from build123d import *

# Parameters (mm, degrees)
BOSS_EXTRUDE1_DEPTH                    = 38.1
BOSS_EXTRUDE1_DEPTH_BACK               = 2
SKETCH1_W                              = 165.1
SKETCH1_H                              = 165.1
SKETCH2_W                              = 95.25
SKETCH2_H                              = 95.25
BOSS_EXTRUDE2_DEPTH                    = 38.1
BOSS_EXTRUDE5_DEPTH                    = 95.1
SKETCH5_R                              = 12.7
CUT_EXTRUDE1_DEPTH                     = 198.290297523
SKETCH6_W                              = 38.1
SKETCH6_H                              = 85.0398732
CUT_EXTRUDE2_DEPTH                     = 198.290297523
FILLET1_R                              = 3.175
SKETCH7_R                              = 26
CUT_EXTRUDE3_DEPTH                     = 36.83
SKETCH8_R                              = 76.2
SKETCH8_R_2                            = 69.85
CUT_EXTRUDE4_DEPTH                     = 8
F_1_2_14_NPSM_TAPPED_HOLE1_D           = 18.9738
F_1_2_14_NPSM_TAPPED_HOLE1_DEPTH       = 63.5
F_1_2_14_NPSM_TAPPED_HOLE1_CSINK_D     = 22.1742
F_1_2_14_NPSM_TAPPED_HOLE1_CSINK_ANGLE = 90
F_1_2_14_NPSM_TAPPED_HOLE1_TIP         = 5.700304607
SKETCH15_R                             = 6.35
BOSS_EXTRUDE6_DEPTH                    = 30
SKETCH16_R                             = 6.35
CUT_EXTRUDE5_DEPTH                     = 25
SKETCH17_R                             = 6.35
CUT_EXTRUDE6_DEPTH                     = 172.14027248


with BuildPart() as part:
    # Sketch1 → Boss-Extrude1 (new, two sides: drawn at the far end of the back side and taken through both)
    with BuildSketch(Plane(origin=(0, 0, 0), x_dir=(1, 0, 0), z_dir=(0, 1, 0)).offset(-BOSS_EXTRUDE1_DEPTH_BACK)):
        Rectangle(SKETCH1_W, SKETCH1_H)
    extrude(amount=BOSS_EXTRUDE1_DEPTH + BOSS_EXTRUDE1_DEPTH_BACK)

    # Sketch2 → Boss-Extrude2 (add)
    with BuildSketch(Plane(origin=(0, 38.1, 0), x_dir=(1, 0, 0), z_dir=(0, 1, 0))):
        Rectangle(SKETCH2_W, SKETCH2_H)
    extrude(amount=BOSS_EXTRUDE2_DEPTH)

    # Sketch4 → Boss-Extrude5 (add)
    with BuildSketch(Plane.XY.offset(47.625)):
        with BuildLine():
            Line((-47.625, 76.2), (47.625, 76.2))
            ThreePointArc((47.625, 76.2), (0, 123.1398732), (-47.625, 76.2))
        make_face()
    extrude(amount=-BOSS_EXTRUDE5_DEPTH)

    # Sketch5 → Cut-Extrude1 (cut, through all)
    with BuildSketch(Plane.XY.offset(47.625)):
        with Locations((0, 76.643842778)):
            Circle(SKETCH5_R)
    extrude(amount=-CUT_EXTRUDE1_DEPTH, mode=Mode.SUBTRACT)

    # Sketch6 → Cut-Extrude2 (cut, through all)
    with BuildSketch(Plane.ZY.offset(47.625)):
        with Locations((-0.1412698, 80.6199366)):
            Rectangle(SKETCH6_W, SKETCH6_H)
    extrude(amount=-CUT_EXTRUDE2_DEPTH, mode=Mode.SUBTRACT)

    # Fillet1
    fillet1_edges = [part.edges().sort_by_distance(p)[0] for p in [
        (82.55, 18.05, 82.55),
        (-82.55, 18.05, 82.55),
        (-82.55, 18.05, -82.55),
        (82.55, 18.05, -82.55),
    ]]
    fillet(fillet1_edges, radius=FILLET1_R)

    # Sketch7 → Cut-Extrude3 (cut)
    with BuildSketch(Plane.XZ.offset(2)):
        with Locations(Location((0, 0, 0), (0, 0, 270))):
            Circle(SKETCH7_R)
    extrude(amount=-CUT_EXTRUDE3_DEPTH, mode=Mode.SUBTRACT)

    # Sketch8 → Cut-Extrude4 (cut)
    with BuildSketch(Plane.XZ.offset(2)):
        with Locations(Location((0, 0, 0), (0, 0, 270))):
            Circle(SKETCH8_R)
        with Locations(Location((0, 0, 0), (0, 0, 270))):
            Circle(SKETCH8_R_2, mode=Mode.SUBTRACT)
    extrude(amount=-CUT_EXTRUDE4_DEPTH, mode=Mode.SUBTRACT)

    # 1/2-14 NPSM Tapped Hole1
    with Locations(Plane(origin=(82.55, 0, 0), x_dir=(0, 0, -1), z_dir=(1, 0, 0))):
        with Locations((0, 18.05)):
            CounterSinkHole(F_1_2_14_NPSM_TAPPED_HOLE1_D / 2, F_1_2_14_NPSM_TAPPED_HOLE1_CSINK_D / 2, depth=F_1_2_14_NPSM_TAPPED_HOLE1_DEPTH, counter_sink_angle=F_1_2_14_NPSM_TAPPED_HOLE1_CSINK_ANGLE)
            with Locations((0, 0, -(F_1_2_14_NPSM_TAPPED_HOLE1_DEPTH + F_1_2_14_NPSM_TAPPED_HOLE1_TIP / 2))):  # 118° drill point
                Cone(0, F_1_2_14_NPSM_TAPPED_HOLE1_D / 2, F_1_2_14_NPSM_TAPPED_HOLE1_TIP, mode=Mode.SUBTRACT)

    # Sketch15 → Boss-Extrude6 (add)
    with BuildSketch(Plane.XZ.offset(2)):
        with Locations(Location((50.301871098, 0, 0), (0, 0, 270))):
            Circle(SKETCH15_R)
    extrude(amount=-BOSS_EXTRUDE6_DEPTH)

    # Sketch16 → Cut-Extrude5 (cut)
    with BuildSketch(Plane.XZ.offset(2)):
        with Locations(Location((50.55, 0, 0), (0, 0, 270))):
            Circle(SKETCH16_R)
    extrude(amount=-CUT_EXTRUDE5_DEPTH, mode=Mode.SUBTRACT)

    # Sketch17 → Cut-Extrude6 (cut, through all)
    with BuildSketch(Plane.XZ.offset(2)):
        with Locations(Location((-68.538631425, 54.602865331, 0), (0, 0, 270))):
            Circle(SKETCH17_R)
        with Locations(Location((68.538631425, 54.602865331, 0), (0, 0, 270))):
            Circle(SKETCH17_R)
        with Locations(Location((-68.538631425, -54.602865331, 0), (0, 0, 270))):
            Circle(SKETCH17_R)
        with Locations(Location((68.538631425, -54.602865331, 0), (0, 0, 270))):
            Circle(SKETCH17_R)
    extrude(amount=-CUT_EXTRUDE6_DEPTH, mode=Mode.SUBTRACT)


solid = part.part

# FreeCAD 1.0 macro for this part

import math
import FreeCAD as App
import Part
import Sketcher
Q = App.Units.Quantity


def edges_at(feature, points):
    """Names of the edges that pass closest to the given points."""
    edges = feature.Shape.Edges
    near = lambda p: min(range(len(edges)), key=lambda i: edges[i].distToShape(Part.Vertex(*p))[0])
    return sorted({f"Edge{near(p) + 1}" for p in points})

doc = App.newDocument("Part")
body = doc.addObject("PartDesign::Body", "Body")

sketch1 = body.newObject("Sketcher::SketchObject", "Sketch")
sketch1.AttachmentSupport = (doc.getObject("XZ_Plane"), [""])
sketch1.MapMode = "FlatFace"
sketch1.addGeometry(Part.LineSegment(App.Vector(-83, -83, 0), App.Vector(-83, 83, 0)), False)
sketch1.addGeometry(Part.LineSegment(App.Vector(-83, 83, 0), App.Vector(83, 83, 0)), False)
sketch1.addGeometry(Part.LineSegment(App.Vector(83, 83, 0), App.Vector(83, -83, 0)), False)
sketch1.addGeometry(Part.LineSegment(App.Vector(83, -83, 0), App.Vector(-83, -83, 0)), False)
sketch1.addConstraint(Sketcher.Constraint("Coincident", 0, 2, 1, 1))
sketch1.addConstraint(Sketcher.Constraint("Coincident", 1, 2, 2, 1))
sketch1.addConstraint(Sketcher.Constraint("Coincident", 2, 2, 3, 1))
sketch1.addConstraint(Sketcher.Constraint("Coincident", 3, 2, 0, 1))
sketch1.addConstraint(Sketcher.Constraint("Vertical", 0))
sketch1.addConstraint(Sketcher.Constraint("Horizontal", 1))
sketch1.addConstraint(Sketcher.Constraint("Vertical", 2))
sketch1.addConstraint(Sketcher.Constraint("Horizontal", 3))
sketch1.addConstraint(Sketcher.Constraint("Symmetric", 0, 2, 2, 2, -1, 1))
sketch1.addConstraint(Sketcher.Constraint("Equal", 3, 0))
sketch1.addConstraint(Sketcher.Constraint("DistanceX", 1, 1, 1, 2, Q("6.5 in")))
pad1 = body.newObject("PartDesign::Pad", "Pad")
pad1.Profile = sketch1
pad1.Type = "TwoLengths"
pad1.Length = Q("1.5 in")
pad1.Length2 = 2
pad1.Reversed = True

sketch2 = body.newObject("Sketcher::SketchObject", "Sketch001")
sketch2.AttachmentSupport = (doc.getObject("XZ_Plane"), [""])
sketch2.MapMode = "FlatFace"
sketch2.AttachmentOffset = App.Placement(App.Vector(0, 0, -1.5 * 25.4), App.Rotation())
sketch2.addGeometry(Part.LineSegment(App.Vector(-48, -48, 0), App.Vector(-48, 48, 0)), False)
sketch2.addGeometry(Part.LineSegment(App.Vector(-48, 48, 0), App.Vector(48, 48, 0)), False)
sketch2.addGeometry(Part.LineSegment(App.Vector(48, 48, 0), App.Vector(48, -48, 0)), False)
sketch2.addGeometry(Part.LineSegment(App.Vector(48, -48, 0), App.Vector(-48, -48, 0)), False)
sketch2.addConstraint(Sketcher.Constraint("Coincident", 0, 2, 1, 1))
sketch2.addConstraint(Sketcher.Constraint("Coincident", 1, 2, 2, 1))
sketch2.addConstraint(Sketcher.Constraint("Coincident", 2, 2, 3, 1))
sketch2.addConstraint(Sketcher.Constraint("Coincident", 3, 2, 0, 1))
sketch2.addConstraint(Sketcher.Constraint("Vertical", 0))
sketch2.addConstraint(Sketcher.Constraint("Horizontal", 1))
sketch2.addConstraint(Sketcher.Constraint("Vertical", 2))
sketch2.addConstraint(Sketcher.Constraint("Horizontal", 3))
sketch2.addConstraint(Sketcher.Constraint("Symmetric", 0, 2, 2, 2, -1, 1))
sketch2.addConstraint(Sketcher.Constraint("Equal", 3, 0))
sketch2.addConstraint(Sketcher.Constraint("DistanceX", 1, 1, 1, 2, Q("3.75 in")))
pad2 = body.newObject("PartDesign::Pad", "Pad001")
pad2.Profile = sketch2
pad2.Length = Q("1.5 in")
pad2.Reversed = True

sketch3 = body.newObject("Sketcher::SketchObject", "Sketch002")
sketch3.AttachmentSupport = (doc.getObject("XY_Plane"), [""])
sketch3.MapMode = "FlatFace"
sketch3.AttachmentOffset = App.Placement(App.Vector(0, 0, 1.875 * 25.4), App.Rotation())
sketch3.addGeometry(Part.LineSegment(App.Vector(-48, 76, 0), App.Vector(48, 76, 0)), False)
sketch3.addGeometry(Part.ArcOfCircle(Part.Circle(App.Vector(0, 76, 0), App.Vector(0, 0, 1), 48), math.radians(1), math.radians(179)), False)
sketch3.addConstraint(Sketcher.Constraint("Coincident", 0, 1, 1, 2))
sketch3.addConstraint(Sketcher.Constraint("Coincident", 1, 1, 0, 2))
sketch3.addConstraint(Sketcher.Constraint("Horizontal", 0))
sketch3.addConstraint(Sketcher.Constraint("PointOnObject", 1, 3, -2))
sketch3.addConstraint(Sketcher.Constraint("DistanceY", -1, 1, 0, 1, Q("3 in")))
sketch3.addConstraint(Sketcher.Constraint("DistanceX", 0, 1, 0, 2, Q("3.75 in")))
sketch3.addConstraint(Sketcher.Constraint("Radius", 1, Q("47.63 mm")))
pad3 = body.newObject("PartDesign::Pad", "Pad002")
pad3.Profile = sketch3
pad3.Length = 95.1
pad3.Reversed = True

sketch4 = body.newObject("Sketcher::SketchObject", "Sketch003")
sketch4.AttachmentSupport = (doc.getObject("XY_Plane"), [""])
sketch4.MapMode = "FlatFace"
sketch4.AttachmentOffset = App.Placement(App.Vector(0, 0, 1.875 * 25.4), App.Rotation())
sketch4.addGeometry(Part.Circle(App.Vector(0, 77, 0), App.Vector(0, 0, 1), 13), False)
sketch4.addConstraint(Sketcher.Constraint("PointOnObject", 0, 3, -2))
sketch4.addConstraint(Sketcher.Constraint("Diameter", 0, Q("1 in")))
sketch4.addConstraint(Sketcher.Constraint("DistanceY", -1, 1, 0, 3, Q("76.643843 mm")))
pocket1 = body.newObject("PartDesign::Pocket", "Pocket")
pocket1.Profile = sketch4
pocket1.Type = "ThroughAll"

sketch5 = body.newObject("Sketcher::SketchObject", "Sketch004")
sketch5.AttachmentSupport = (doc.getObject("YZ_Plane"), [""])
sketch5.MapMode = "FlatFace"
sketch5.AttachmentOffset = App.Placement(App.Vector(0, 0, -1.875 * 25.4), App.Rotation())
sketch5.addGeometry(Part.LineSegment(App.Vector(123, -19, 0), App.Vector(38, -19, 0)), False)
sketch5.addGeometry(Part.LineSegment(App.Vector(38, -19, 0), App.Vector(38, 19, 0)), False)
sketch5.addGeometry(Part.LineSegment(App.Vector(38, 19, 0), App.Vector(123, 19, 0)), False)
sketch5.addGeometry(Part.LineSegment(App.Vector(123, 19, 0), App.Vector(123, -19, 0)), False)
sketch5.addConstraint(Sketcher.Constraint("Coincident", 0, 2, 1, 1))
sketch5.addConstraint(Sketcher.Constraint("Coincident", 1, 2, 2, 1))
sketch5.addConstraint(Sketcher.Constraint("Coincident", 2, 2, 3, 1))
sketch5.addConstraint(Sketcher.Constraint("Coincident", 3, 2, 0, 1))
sketch5.addConstraint(Sketcher.Constraint("Horizontal", 0))
sketch5.addConstraint(Sketcher.Constraint("Vertical", 1))
sketch5.addConstraint(Sketcher.Constraint("Horizontal", 2))
sketch5.addConstraint(Sketcher.Constraint("Vertical", 3))
sketch5.addConstraint(Sketcher.Constraint("DistanceY", 1, 1, 1, 2, Q("1.5 in")))
sketch5.addConstraint(Sketcher.Constraint("DistanceX", -1, 1, 0, 2, Q("1.5 in")))
sketch5.addConstraint(Sketcher.Constraint("DistanceX", 0, 2, 0, 1, Q("85.039873 mm")))
sketch5.addConstraint(Sketcher.Constraint("DistanceY", 0, 2, -1, 1, Q("19.19127 mm")))
pocket2 = body.newObject("PartDesign::Pocket", "Pocket001")
pocket2.Profile = sketch5
pocket2.Type = "ThroughAll"
pocket2.Reversed = True
doc.recompute()

fillet = body.newObject("PartDesign::Fillet", "Fillet")
fillet.Base = (pocket2, edges_at(pocket2, [
    (82.55, 18.05, 82.55),
    (-82.55, 18.05, 82.55),
    (-82.55, 18.05, -82.55),
    (82.55, 18.05, -82.55),
]))
fillet.Radius = Q("0.125 in")

sketch6 = body.newObject("Sketcher::SketchObject", "Sketch005")
sketch6.AttachmentSupport = (doc.getObject("XZ_Plane"), [""])
sketch6.MapMode = "FlatFace"
sketch6.AttachmentOffset = App.Placement(App.Vector(0, 0, 2), App.Rotation())
sketch6.addGeometry(Part.Circle(App.Vector(0, 0, 0), App.Vector(0, 0, 1), 26), False)
sketch6.addConstraint(Sketcher.Constraint("Coincident", 0, 3, -1, 1))
sketch6.addConstraint(Sketcher.Constraint("Diameter", 0, Q("52 mm")))
pocket3 = body.newObject("PartDesign::Pocket", "Pocket002")
pocket3.Profile = sketch6
pocket3.Length = Q("1.45 in")

sketch7 = body.newObject("Sketcher::SketchObject", "Sketch006")
sketch7.AttachmentSupport = (doc.getObject("XZ_Plane"), [""])
sketch7.MapMode = "FlatFace"
sketch7.AttachmentOffset = App.Placement(App.Vector(0, 0, 2), App.Rotation())
sketch7.addGeometry(Part.Circle(App.Vector(0, 0, 0), App.Vector(0, 0, 1), 76), False)
sketch7.addGeometry(Part.Circle(App.Vector(0, 0, 0), App.Vector(0, 0, 1), 70), False)
sketch7.addConstraint(Sketcher.Constraint("Coincident", 0, 3, -1, 1))
sketch7.addConstraint(Sketcher.Constraint("Coincident", 1, 3, -1, 1))
sketch7.addConstraint(Sketcher.Constraint("Diameter", 0, Q("6 in")))
sketch7.addConstraint(Sketcher.Constraint("Diameter", 1, Q("5.5 in")))
pocket4 = body.newObject("PartDesign::Pocket", "Pocket003")
pocket4.Profile = sketch7
pocket4.Length = 8

sketch8 = body.newObject("Sketcher::SketchObject", "Sketch007")
sketch8.AttachmentSupport = (doc.getObject("YZ_Plane"), [""])
sketch8.MapMode = "FlatFace"
sketch8.AttachmentOffset = App.Placement(App.Vector(0, 0, 3.25 * 25.4), App.Rotation())
sketch8.addGeometry(Part.Circle(App.Vector(18, 0, 0), App.Vector(0, 0, 1), 9), False)
sketch8.addConstraint(Sketcher.Constraint("PointOnObject", 0, 3, -1))
sketch8.addConstraint(Sketcher.Constraint("Diameter", 0, Q("0.747 in")))
sketch8.addConstraint(Sketcher.Constraint("DistanceX", -1, 1, 0, 3, Q("18.05 mm")))
doc.recompute()
hole = body.newObject("PartDesign::Hole", "Hole")
hole.Profile = sketch8
hole.ThreadType = "None"
hole.Diameter = Q("0.747 in")
hole.DepthType = "Dimension"
hole.Depth = Q("2.5 in")
hole.DrillPoint = "Angled"
hole.DrillPointAngle = 118
hole.HoleCutType = "Countersink"
hole.HoleCutDiameter = Q("0.873 in")
hole.HoleCutCountersinkAngle = 90

sketch9 = body.newObject("Sketcher::SketchObject", "Sketch008")
sketch9.AttachmentSupport = (doc.getObject("XZ_Plane"), [""])
sketch9.MapMode = "FlatFace"
sketch9.AttachmentOffset = App.Placement(App.Vector(0, 0, 2), App.Rotation())
sketch9.addGeometry(Part.Circle(App.Vector(50, 0, 0), App.Vector(0, 0, 1), 6), False)
sketch9.addConstraint(Sketcher.Constraint("PointOnObject", 0, 3, -1))
sketch9.addConstraint(Sketcher.Constraint("Diameter", 0, Q("0.5 in")))
sketch9.addConstraint(Sketcher.Constraint("DistanceX", -1, 1, 0, 3, Q("50.301871 mm")))
pad4 = body.newObject("PartDesign::Pad", "Pad003")
pad4.Profile = sketch9
pad4.Length = 30
pad4.Reversed = True

sketch10 = body.newObject("Sketcher::SketchObject", "Sketch009")
sketch10.AttachmentSupport = (doc.getObject("XZ_Plane"), [""])
sketch10.MapMode = "FlatFace"
sketch10.AttachmentOffset = App.Placement(App.Vector(0, 0, 2), App.Rotation())
sketch10.addGeometry(Part.Circle(App.Vector(51, 0, 0), App.Vector(0, 0, 1), 6), False)
sketch10.addConstraint(Sketcher.Constraint("PointOnObject", 0, 3, -1))
sketch10.addConstraint(Sketcher.Constraint("Diameter", 0, Q("0.5 in")))
sketch10.addConstraint(Sketcher.Constraint("DistanceX", -1, 1, 0, 3, Q("50.55 mm")))
pocket5 = body.newObject("PartDesign::Pocket", "Pocket004")
pocket5.Profile = sketch10
pocket5.Length = 25

sketch11 = body.newObject("Sketcher::SketchObject", "Sketch010")
sketch11.AttachmentSupport = (doc.getObject("XZ_Plane"), [""])
sketch11.MapMode = "FlatFace"
sketch11.AttachmentOffset = App.Placement(App.Vector(0, 0, 2), App.Rotation())
sketch11.addGeometry(Part.Circle(App.Vector(-69, 55, 0), App.Vector(0, 0, 1), 6), False)
sketch11.addGeometry(Part.Circle(App.Vector(69, 55, 0), App.Vector(0, 0, 1), 6), False)
sketch11.addGeometry(Part.Circle(App.Vector(-69, -55, 0), App.Vector(0, 0, 1), 6), False)
sketch11.addGeometry(Part.Circle(App.Vector(69, -55, 0), App.Vector(0, 0, 1), 6), False)
sketch11.addConstraint(Sketcher.Constraint("Equal", 0, 1))
sketch11.addConstraint(Sketcher.Constraint("Equal", 1, 2))
sketch11.addConstraint(Sketcher.Constraint("Equal", 2, 3))
sketch11.addConstraint(Sketcher.Constraint("Symmetric", 1, 3, 2, 3, -1, 1))
sketch11.addConstraint(Sketcher.Constraint("Symmetric", 0, 3, 3, 3, -1, 1))
sketch11.addConstraint(Sketcher.Constraint("Symmetric", 0, 3, 1, 3, -2))
sketch11.addConstraint(Sketcher.Constraint("Diameter", 0, Q("0.5 in")))
sketch11.addConstraint(Sketcher.Constraint("DistanceX", 0, 3, -1, 1, Q("68.538631 mm")))
sketch11.addConstraint(Sketcher.Constraint("DistanceY", 2, 3, 0, 3, Q("109.205731 mm")))
pocket6 = body.newObject("PartDesign::Pocket", "Pocket005")
pocket6.Profile = sketch11
pocket6.Type = "ThroughAll"

doc.recompute()
